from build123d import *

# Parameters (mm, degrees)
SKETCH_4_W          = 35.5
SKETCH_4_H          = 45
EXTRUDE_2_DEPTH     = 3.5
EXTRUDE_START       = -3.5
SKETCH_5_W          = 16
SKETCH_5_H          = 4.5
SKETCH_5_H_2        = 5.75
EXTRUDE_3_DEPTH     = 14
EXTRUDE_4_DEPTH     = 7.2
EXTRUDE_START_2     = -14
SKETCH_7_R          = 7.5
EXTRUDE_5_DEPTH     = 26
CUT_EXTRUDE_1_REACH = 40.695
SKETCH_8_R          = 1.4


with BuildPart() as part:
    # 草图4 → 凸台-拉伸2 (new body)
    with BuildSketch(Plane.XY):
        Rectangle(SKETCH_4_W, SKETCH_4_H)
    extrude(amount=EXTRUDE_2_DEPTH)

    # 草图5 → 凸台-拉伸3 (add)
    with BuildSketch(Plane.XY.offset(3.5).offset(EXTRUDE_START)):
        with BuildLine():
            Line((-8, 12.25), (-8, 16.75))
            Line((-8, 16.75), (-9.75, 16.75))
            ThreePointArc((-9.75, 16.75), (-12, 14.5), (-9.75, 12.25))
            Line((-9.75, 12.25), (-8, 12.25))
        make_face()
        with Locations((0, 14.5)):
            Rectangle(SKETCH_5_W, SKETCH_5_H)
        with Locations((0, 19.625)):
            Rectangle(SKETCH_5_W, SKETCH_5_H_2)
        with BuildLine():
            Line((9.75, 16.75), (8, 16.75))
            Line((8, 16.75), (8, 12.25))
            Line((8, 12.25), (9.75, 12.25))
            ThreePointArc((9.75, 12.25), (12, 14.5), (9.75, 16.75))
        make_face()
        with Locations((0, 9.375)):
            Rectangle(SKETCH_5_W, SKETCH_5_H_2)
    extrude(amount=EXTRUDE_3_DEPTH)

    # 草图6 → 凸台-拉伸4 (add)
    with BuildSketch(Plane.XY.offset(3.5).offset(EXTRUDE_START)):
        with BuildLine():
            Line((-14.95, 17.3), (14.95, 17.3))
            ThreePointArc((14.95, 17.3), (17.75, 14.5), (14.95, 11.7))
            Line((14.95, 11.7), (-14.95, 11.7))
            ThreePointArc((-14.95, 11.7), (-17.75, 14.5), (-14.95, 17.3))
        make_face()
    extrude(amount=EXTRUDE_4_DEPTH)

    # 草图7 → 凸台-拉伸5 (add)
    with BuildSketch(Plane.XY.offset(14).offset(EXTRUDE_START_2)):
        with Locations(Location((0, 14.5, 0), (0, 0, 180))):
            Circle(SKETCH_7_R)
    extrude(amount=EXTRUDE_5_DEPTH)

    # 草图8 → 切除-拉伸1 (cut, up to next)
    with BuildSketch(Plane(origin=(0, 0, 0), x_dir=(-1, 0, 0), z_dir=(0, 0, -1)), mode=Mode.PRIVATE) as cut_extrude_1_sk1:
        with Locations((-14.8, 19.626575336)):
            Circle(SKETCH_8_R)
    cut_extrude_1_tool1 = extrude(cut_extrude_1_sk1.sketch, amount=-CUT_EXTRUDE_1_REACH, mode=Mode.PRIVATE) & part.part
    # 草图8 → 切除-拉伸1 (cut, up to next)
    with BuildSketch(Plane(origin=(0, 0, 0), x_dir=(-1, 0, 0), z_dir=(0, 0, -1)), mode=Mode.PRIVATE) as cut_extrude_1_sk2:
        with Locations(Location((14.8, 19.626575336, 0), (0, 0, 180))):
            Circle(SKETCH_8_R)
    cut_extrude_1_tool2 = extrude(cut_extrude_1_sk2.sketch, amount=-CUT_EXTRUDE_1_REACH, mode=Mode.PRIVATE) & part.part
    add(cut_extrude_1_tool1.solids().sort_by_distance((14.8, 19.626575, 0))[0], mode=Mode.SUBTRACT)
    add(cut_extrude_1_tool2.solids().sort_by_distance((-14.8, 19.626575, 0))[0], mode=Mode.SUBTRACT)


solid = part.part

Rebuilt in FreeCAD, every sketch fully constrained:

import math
import FreeCAD as App
import Part
import Sketcher


def add_polygon(sketch, points):
    """Adds a closed chain of lines whose ends are joined by coincident constraints."""
    first, n = sketch.GeometryCount, len(points)
    for a, b in zip(points, points[1:] + points[:1]):
        sketch.addGeometry(Part.LineSegment(App.Vector(*a, 0), App.Vector(*b, 0)), False)
    for i in range(n):
        sketch.addConstraint(Sketcher.Constraint("Coincident", first + i, 2, first + (i + 1) % n, 1))

doc = App.newDocument("Part")
body = doc.addObject("PartDesign::Body", "Body")

sketch1 = doc.addObject("Sketcher::SketchObject", "Sketch")
body.addObject(sketch1)
sketch1.AttachmentSupport = (doc.XY_Plane, [""])
sketch1.MapMode = "FlatFace"
add_polygon(sketch1, [(-18, 22), (-18, -22), (18, -22), (18, 22)])
sketch1.addConstraint([
    Sketcher.Constraint("Vertical", 0),
    Sketcher.Constraint("Horizontal", 1),
    Sketcher.Constraint("Vertical", 2),
    Sketcher.Constraint("Horizontal", 3),
    Sketcher.Constraint("Symmetric", 0, 2, 2, 2, -1, 1),
    Sketcher.Constraint("DistanceY", 0, 2, 0, 1, 45.0),
    Sketcher.Constraint("DistanceX", 1, 1, 1, 2, 35.5),
])
pad1 = doc.addObject("PartDesign::Pad", "Pad")
body.addObject(pad1)
pad1.Profile = sketch1
pad1.Length = 3.5

sketch2 = doc.addObject("Sketcher::SketchObject", "Sketch001")
body.addObject(sketch2)
sketch2.AttachmentSupport = (doc.XY_Plane, [""])
sketch2.MapMode = "FlatFace"
sketch2.addGeometry([
    Part.ArcOfCircle(Part.Circle(App.Vector(-9.8, 14.5, 0), App.Vector(0, 0, 1), 2.2), math.radians(90), math.radians(270)),
    Part.LineSegment(App.Vector(-9.8, 12.2, 0), App.Vector(-8, 12.2, 0)),
    Part.LineSegment(App.Vector(-8, 12.2, 0), App.Vector(-8, 6.5, 0)),
    Part.LineSegment(App.Vector(-8, 6.5, 0), App.Vector(8, 6.5, 0)),
    Part.LineSegment(App.Vector(8, 6.5, 0), App.Vector(8, 12.2, 0)),
    Part.LineSegment(App.Vector(8, 12.2, 0), App.Vector(9.8, 12.2, 0)),
    Part.ArcOfCircle(Part.Circle(App.Vector(9.8, 14.5, 0), App.Vector(0, 0, 1), 2.2), math.radians(-90), math.radians(90)),
    Part.LineSegment(App.Vector(9.8, 16.8, 0), App.Vector(8, 16.8, 0)),
    Part.LineSegment(App.Vector(8, 16.8, 0), App.Vector(8, 22.5, 0)),
    Part.LineSegment(App.Vector(8, 22.5, 0), App.Vector(-8, 22.5, 0)),
    Part.LineSegment(App.Vector(-8, 22.5, 0), App.Vector(-8, 16.8, 0)),
    Part.LineSegment(App.Vector(-8, 16.8, 0), App.Vector(-9.8, 16.8, 0)),
], False)
sketch2.addConstraint([
    Sketcher.Constraint("Tangent", 0, 2, 1, 1),
    Sketcher.Constraint("Coincident", 1, 2, 2, 1),
    Sketcher.Constraint("Coincident", 2, 2, 3, 1),
    Sketcher.Constraint("Coincident", 3, 2, 4, 1),
    Sketcher.Constraint("Coincident", 4, 2, 5, 1),
    Sketcher.Constraint("Tangent", 5, 2, 6, 1),
    Sketcher.Constraint("Tangent", 6, 2, 7, 1),
    Sketcher.Constraint("Coincident", 7, 2, 8, 1),
    Sketcher.Constraint("Coincident", 8, 2, 9, 1),
    Sketcher.Constraint("Coincident", 9, 2, 10, 1),
    Sketcher.Constraint("Coincident", 10, 2, 11, 1),
    Sketcher.Constraint("Tangent", 11, 2, 0, 1),
    Sketcher.Constraint("Horizontal", 1),
    Sketcher.Constraint("Vertical", 2),
    Sketcher.Constraint("Horizontal", 3),
    Sketcher.Constraint("Vertical", 4),
    Sketcher.Constraint("Horizontal", 5),
    Sketcher.Constraint("Horizontal", 7),
    Sketcher.Constraint("Vertical", 8),
    Sketcher.Constraint("Horizontal", 9),
    Sketcher.Constraint("Vertical", 10),
    Sketcher.Constraint("Horizontal", 11),
    Sketcher.Constraint("Equal", 0, 6),
    Sketcher.Constraint("Symmetric", 0, 3, 6, 3, -2),
    Sketcher.Constraint("Vertical", 4, 2, 7, 2),
    Sketcher.Constraint("Vertical", 2, 2, 9, 2),
    Sketcher.Constraint("Equal", 1, 5),
    Sketcher.Constraint("Equal", 4, 8),
    Sketcher.Constraint("DistanceX", 3, 1, 3, 2, 16.0),
    Sketcher.Constraint("Radius", 0, 2.25),
    Sketcher.Constraint("DistanceY", 2, 2, 0, 3, 8.0),
    Sketcher.Constraint("DistanceX", 1, 1, 1, 2, 1.75),
    Sketcher.Constraint("DistanceY", -1, 1, 0, 3, 14.5),
])
pad2 = doc.addObject("PartDesign::Pad", "Pad001")
body.addObject(pad2)
pad2.Profile = sketch2
pad2.Length = 14

sketch3 = doc.addObject("Sketcher::SketchObject", "Sketch002")
body.addObject(sketch3)
sketch3.AttachmentSupport = (doc.XY_Plane, [""])
sketch3.MapMode = "FlatFace"
sketch3.addGeometry([
    Part.LineSegment(App.Vector(14.9, 17.3, 0), App.Vector(-14.9, 17.3, 0)),
    Part.ArcOfCircle(Part.Circle(App.Vector(-14.9, 14.5, 0), App.Vector(0, 0, 1), 2.8), math.radians(90), math.radians(270)),
    Part.LineSegment(App.Vector(-14.9, 11.7, 0), App.Vector(14.9, 11.7, 0)),
    Part.ArcOfCircle(Part.Circle(App.Vector(14.9, 14.5, 0), App.Vector(0, 0, 1), 2.8), math.radians(-90), math.radians(90)),
], False)
sketch3.addConstraint([
    Sketcher.Constraint("Tangent", 0, 2, 1, 1),
    Sketcher.Constraint("Tangent", 1, 2, 2, 1),
    Sketcher.Constraint("Tangent", 2, 2, 3, 1),
    Sketcher.Constraint("Tangent", 3, 2, 0, 1),
    Sketcher.Constraint("Horizontal", 0),
    Sketcher.Constraint("Horizontal", 2),
    Sketcher.Constraint("Radius", 1, 2.8),
    Sketcher.Constraint("DistanceX", 0, 2, 0, 1, 29.9),
    Sketcher.Constraint("DistanceY", -1, 1, 1, 3, 14.5),
    Sketcher.Constraint("DistanceX", 1, 3, -1, 1, 14.95),
])
pad3 = doc.addObject("PartDesign::Pad", "Pad002")
body.addObject(pad3)
pad3.Profile = sketch3
pad3.Length = 7.2

sketch4 = doc.addObject("Sketcher::SketchObject", "Sketch003")
body.addObject(sketch4)
sketch4.AttachmentSupport = (doc.XY_Plane, [""])
sketch4.MapMode = "FlatFace"
sketch4.addGeometry(Part.Circle(App.Vector(0, 14, 0), App.Vector(0, 0, 1), 8), False)
sketch4.addConstraint([
    Sketcher.Constraint("PointOnObject", 0, 3, -2),
    Sketcher.Constraint("Diameter", 0, 15.0),
    Sketcher.Constraint("DistanceY", -1, 1, 0, 3, 14.5),
])
pad4 = doc.addObject("PartDesign::Pad", "Pad003")
body.addObject(pad4)
pad4.Profile = sketch4
pad4.Length = 26

sketch5 = doc.addObject("Sketcher::SketchObject", "Sketch004")
body.addObject(sketch5)
sketch5.AttachmentSupport = (doc.XY_Plane, [""])
sketch5.MapMode = "FlatFace"
sketch5.addGeometry(Part.Circle(App.Vector(14.8, 19.6, 0), App.Vector(0, 0, 1), 1.4), False)
sketch5.addConstraint([
    Sketcher.Constraint("Diameter", 0, 2.8),
    Sketcher.Constraint("DistanceX", -1, 1, 0, 3, 14.8),
    Sketcher.Constraint("DistanceY", -1, 1, 0, 3, 19.626575),
])
pocket1 = doc.addObject("PartDesign::Pocket", "Pocket")
body.addObject(pocket1)
pocket1.Profile = sketch5
pocket1.Type = "UpToFirst"
pocket1.Reversed = True

sketch6 = doc.addObject("Sketcher::SketchObject", "Sketch005")
body.addObject(sketch6)
sketch6.AttachmentSupport = (doc.XY_Plane, [""])
sketch6.MapMode = "FlatFace"
sketch6.addGeometry(Part.Circle(App.Vector(-14.8, 19.6, 0), App.Vector(0, 0, 1), 1.4), False)
sketch6.addConstraint([
    Sketcher.Constraint("Diameter", 0, 2.8),
    Sketcher.Constraint("DistanceX", 0, 3, -1, 1, 14.8),
    Sketcher.Constraint("DistanceY", -1, 1, 0, 3, 19.626575),
])
pocket2 = doc.addObject("PartDesign::Pocket", "Pocket001")
body.addObject(pocket2)
pocket2.Profile = sketch6
pocket2.Type = "UpToFirst"
pocket2.Reversed = True

doc.recompute()
